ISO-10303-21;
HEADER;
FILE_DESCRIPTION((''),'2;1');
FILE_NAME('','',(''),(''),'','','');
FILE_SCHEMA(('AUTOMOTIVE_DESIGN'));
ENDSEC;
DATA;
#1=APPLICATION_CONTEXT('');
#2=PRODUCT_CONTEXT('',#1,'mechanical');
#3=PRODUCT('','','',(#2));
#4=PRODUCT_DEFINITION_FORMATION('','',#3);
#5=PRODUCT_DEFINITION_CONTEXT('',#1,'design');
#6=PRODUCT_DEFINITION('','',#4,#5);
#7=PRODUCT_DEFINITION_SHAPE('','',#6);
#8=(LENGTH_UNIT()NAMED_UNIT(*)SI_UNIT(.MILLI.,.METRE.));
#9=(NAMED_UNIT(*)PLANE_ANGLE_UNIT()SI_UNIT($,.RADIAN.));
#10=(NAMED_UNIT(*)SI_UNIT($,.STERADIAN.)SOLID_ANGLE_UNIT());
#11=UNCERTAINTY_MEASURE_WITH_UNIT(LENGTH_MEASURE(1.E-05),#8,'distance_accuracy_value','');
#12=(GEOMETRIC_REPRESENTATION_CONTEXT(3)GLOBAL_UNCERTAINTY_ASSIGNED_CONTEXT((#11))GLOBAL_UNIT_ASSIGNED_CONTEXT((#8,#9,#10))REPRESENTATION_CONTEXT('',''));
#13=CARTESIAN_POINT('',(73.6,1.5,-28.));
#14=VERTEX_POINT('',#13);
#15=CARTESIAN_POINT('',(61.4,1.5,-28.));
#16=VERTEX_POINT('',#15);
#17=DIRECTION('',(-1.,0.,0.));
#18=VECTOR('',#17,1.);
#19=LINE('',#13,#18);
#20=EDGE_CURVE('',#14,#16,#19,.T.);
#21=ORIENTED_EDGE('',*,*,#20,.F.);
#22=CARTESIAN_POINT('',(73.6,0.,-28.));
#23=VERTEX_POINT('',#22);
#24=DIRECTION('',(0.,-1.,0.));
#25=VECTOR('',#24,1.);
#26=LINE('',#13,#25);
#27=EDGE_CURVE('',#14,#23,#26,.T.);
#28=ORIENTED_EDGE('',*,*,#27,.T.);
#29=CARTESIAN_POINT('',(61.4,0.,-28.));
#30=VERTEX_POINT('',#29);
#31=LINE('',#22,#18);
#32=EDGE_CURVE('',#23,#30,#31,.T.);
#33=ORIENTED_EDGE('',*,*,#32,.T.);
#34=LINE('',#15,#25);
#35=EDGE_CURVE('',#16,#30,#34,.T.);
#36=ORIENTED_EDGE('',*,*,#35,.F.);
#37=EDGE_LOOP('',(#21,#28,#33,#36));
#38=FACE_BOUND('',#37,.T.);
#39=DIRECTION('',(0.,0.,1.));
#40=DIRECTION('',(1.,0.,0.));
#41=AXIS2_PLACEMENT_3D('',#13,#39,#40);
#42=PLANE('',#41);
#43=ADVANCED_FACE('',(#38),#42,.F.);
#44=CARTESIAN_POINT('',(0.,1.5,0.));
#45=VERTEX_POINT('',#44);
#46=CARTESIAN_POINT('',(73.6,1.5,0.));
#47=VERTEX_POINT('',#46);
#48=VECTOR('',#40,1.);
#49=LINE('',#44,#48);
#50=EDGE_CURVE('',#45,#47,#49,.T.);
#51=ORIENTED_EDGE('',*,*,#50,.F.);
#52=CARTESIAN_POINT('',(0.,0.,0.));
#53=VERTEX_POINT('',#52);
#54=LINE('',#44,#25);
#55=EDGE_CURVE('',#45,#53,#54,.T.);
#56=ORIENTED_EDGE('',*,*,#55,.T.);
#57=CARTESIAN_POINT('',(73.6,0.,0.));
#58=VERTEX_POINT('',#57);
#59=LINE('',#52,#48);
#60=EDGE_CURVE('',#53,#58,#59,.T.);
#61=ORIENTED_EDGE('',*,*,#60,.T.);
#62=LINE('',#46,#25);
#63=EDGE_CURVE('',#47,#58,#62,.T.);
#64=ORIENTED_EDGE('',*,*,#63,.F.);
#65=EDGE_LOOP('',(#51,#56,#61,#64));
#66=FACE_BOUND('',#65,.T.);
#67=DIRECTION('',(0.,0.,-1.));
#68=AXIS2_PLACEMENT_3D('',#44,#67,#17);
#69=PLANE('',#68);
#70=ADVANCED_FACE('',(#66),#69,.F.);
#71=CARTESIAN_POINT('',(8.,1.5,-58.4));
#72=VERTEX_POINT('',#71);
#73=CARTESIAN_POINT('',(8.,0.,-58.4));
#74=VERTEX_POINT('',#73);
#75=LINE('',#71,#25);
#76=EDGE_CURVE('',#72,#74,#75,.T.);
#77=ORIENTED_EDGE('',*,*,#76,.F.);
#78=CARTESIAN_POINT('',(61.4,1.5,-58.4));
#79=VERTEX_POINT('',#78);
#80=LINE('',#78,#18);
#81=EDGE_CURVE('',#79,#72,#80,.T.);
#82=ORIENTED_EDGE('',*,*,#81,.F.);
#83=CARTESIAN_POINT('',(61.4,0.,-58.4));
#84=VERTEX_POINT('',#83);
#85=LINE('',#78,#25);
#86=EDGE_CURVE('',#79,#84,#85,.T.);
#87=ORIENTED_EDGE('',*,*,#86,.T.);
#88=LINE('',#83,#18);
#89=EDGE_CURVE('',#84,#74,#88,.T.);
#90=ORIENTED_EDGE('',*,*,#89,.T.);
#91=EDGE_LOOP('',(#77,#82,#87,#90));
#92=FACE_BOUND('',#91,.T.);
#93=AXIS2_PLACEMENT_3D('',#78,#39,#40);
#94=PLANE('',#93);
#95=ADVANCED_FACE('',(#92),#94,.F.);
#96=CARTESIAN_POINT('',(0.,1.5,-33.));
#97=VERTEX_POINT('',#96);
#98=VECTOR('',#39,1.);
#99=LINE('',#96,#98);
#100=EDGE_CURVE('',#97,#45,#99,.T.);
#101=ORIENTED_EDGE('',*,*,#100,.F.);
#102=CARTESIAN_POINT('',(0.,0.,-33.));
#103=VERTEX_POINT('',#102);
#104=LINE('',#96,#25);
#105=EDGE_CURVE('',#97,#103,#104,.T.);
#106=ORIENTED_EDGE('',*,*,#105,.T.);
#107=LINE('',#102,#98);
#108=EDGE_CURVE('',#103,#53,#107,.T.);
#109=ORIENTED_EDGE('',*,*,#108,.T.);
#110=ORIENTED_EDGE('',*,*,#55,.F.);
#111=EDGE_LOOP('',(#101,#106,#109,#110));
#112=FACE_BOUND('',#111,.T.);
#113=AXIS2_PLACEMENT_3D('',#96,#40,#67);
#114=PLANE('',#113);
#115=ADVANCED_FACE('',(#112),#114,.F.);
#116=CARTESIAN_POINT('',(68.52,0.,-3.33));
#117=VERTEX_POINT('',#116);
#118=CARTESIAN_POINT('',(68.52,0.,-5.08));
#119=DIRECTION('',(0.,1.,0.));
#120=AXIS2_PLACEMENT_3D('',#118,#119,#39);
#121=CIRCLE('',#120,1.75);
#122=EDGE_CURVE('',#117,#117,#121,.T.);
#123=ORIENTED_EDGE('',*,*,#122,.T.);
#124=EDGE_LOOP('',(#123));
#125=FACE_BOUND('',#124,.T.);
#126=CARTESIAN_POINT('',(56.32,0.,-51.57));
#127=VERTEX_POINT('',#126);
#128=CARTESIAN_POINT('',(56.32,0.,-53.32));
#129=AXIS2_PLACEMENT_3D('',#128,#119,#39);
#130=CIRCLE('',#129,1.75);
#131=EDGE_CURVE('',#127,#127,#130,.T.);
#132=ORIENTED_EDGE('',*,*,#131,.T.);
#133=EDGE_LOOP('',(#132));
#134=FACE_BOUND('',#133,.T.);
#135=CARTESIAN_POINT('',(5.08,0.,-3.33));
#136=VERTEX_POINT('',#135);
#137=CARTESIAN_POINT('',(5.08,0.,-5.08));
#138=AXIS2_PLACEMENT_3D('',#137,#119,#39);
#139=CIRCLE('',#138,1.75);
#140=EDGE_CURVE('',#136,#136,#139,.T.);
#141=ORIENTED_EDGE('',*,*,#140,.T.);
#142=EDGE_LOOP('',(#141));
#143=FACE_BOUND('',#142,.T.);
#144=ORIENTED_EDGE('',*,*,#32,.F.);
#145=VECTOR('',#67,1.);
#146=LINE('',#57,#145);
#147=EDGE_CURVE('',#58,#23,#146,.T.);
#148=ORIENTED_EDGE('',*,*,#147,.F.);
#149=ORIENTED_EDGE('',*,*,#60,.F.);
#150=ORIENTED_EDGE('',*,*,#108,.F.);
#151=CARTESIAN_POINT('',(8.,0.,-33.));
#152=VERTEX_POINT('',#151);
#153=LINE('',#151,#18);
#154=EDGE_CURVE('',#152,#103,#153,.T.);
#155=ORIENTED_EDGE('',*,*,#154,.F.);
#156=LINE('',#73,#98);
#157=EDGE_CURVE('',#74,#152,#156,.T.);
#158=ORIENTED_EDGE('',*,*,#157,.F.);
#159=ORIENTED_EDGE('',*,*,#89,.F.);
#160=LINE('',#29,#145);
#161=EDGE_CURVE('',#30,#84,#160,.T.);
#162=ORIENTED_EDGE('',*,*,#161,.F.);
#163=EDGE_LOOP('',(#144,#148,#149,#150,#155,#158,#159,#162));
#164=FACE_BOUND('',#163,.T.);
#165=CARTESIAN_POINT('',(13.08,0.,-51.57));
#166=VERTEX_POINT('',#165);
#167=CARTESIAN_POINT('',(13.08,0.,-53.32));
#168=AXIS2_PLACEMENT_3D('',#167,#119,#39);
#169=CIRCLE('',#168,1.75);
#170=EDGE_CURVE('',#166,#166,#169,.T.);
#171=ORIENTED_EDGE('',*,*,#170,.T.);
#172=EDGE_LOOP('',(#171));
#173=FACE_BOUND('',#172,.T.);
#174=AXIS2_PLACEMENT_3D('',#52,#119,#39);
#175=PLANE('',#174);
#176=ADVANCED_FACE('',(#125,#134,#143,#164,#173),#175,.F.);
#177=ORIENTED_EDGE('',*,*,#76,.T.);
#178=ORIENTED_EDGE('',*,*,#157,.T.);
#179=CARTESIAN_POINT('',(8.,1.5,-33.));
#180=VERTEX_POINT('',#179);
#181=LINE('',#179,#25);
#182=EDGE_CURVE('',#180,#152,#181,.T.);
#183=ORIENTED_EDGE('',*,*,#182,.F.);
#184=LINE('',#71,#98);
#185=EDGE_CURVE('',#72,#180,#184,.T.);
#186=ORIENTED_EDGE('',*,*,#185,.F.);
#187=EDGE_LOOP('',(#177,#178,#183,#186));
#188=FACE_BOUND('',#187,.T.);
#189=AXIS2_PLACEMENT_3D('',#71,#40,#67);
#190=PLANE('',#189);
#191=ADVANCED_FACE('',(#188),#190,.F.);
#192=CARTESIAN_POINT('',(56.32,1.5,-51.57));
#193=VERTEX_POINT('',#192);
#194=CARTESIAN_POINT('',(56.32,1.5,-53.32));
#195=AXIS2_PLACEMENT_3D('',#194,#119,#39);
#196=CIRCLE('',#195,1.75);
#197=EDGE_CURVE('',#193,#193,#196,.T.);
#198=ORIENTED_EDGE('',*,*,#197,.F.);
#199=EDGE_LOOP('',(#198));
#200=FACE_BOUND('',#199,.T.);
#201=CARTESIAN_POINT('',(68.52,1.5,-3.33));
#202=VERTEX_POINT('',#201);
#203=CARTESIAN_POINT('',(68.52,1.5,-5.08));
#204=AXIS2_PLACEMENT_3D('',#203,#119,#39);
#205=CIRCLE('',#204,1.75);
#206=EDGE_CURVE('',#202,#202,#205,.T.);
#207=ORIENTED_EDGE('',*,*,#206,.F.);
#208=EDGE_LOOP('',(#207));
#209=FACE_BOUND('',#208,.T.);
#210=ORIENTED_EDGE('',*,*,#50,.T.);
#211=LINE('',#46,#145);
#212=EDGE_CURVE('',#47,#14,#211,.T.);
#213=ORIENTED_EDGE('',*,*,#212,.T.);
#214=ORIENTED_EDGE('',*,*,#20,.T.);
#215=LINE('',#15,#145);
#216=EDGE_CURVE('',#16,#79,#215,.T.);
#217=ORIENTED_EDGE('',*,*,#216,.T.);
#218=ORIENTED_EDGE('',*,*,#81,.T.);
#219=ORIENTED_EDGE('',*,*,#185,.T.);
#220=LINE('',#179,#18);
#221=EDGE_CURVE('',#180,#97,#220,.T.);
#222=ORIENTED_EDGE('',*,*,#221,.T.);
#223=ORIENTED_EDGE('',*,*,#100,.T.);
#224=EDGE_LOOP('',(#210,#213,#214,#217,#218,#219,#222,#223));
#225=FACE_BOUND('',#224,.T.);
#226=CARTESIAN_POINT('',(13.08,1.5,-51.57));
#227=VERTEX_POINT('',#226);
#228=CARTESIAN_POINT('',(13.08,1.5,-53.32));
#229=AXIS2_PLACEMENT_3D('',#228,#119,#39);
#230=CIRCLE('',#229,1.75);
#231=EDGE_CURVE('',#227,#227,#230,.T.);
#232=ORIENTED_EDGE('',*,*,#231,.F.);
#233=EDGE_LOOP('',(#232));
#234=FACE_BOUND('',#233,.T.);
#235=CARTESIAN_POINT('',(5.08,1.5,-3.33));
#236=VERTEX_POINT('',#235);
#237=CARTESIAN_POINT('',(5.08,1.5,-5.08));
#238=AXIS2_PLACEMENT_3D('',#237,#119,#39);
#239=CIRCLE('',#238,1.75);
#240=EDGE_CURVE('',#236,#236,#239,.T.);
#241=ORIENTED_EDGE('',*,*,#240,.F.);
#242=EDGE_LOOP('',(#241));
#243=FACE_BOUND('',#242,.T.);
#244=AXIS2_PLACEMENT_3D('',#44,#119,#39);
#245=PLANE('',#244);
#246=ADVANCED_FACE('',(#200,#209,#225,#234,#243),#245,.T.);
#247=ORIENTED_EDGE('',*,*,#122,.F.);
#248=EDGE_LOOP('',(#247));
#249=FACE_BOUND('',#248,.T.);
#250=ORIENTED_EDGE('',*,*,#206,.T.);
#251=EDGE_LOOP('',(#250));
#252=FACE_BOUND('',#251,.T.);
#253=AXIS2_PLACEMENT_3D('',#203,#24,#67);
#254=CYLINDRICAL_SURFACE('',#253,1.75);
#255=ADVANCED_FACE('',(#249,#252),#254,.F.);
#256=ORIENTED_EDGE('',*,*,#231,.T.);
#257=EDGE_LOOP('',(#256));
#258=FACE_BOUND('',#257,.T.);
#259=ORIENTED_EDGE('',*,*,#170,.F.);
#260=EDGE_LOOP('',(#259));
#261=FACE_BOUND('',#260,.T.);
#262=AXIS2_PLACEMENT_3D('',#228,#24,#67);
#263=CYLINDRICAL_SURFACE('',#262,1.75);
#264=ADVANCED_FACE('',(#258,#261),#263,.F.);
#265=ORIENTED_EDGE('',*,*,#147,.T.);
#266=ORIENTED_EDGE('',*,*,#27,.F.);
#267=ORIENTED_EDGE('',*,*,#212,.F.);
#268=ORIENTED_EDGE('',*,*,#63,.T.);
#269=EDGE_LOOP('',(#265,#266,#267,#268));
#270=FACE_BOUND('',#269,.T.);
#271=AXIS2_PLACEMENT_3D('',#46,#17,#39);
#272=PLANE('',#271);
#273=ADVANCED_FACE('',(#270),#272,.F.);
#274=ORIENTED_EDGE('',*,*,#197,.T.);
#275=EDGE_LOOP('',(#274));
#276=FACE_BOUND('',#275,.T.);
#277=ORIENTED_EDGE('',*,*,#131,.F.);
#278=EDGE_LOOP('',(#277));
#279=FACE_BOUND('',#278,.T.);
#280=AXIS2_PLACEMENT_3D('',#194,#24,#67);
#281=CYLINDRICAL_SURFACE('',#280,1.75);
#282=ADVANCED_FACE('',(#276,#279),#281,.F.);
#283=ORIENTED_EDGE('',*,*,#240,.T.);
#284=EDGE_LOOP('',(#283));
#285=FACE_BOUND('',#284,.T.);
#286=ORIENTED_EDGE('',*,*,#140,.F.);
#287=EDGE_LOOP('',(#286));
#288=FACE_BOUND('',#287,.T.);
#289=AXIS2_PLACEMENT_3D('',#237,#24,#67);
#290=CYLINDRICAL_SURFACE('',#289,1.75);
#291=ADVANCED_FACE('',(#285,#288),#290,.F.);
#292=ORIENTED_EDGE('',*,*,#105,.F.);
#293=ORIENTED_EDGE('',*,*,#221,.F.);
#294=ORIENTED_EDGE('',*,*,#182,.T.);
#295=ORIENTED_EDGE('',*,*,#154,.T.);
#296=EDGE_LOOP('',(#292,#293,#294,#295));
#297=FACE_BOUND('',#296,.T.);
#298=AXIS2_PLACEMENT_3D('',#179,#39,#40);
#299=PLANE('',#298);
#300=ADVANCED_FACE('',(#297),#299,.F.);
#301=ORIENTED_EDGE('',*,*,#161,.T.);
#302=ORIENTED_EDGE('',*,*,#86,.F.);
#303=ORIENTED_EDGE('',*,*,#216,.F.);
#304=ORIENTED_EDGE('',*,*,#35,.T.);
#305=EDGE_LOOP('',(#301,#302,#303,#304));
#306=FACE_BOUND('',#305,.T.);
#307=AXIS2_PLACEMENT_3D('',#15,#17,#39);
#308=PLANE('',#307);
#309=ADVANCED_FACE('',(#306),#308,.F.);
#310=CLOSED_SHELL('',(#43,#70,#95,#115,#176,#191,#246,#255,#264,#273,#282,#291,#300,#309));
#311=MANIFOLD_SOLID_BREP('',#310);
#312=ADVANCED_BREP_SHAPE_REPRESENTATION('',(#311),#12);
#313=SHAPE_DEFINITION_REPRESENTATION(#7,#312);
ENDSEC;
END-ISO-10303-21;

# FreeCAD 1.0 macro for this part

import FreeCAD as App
import Part
import Sketcher
from FreeCAD import Vector

doc = App.newDocument("Part")
body = doc.addObject("PartDesign::Body", "Body")

sketch1 = doc.addObject("Sketcher::SketchObject", "Sketch")
body.addObject(sketch1)
sketch1.AttachmentSupport = (doc.XZ_Plane, [""])
sketch1.MapMode = "FlatFace"
sketch1.addGeometry([
    Part.LineSegment(Vector(0, 0, 0), Vector(73.6, 0, 0)),
    Part.LineSegment(Vector(73.6, 0, 0), Vector(73.6, -28, 0)),
    Part.LineSegment(Vector(73.6, -28, 0), Vector(61.4, -28, 0)),
    Part.LineSegment(Vector(61.4, -28, 0), Vector(61.4, -58.4, 0)),
    Part.LineSegment(Vector(61.4, -58.4, 0), Vector(8, -58.4, 0)),
    Part.LineSegment(Vector(8, -58.4, 0), Vector(8, -33, 0)),
    Part.LineSegment(Vector(8, -33, 0), Vector(0, -33, 0)),
    Part.LineSegment(Vector(0, -33, 0), Vector(0, 0, 0)),
    Part.Circle(Vector(5.08, -5.08, 0), Vector(0, 0, 1), 1.75),
    Part.Circle(Vector(68.52, -5.08, 0), Vector(0, 0, 1), 1.75),
    Part.Circle(Vector(13.08, -53.32, 0), Vector(0, 0, 1), 1.75),
    Part.Circle(Vector(56.32, -53.32, 0), Vector(0, 0, 1), 1.75),
], False)
sketch1.addConstraint([
    Sketcher.Constraint("Coincident", 0, 2, 1, 1),
    Sketcher.Constraint("Coincident", 1, 2, 2, 1),
    Sketcher.Constraint("Coincident", 2, 2, 3, 1),
    Sketcher.Constraint("Coincident", 3, 2, 4, 1),
    Sketcher.Constraint("Coincident", 4, 2, 5, 1),
    Sketcher.Constraint("Coincident", 5, 2, 6, 1),
    Sketcher.Constraint("Coincident", 6, 2, 7, 1),
    Sketcher.Constraint("Coincident", 7, 2, 0, 1),
    Sketcher.Constraint("Horizontal", 0),
    Sketcher.Constraint("Vertical", 1),
    Sketcher.Constraint("Horizontal", 2),
    Sketcher.Constraint("Vertical", 3),
    Sketcher.Constraint("Horizontal", 4),
    Sketcher.Constraint("Vertical", 5),
    Sketcher.Constraint("Horizontal", 6),
    Sketcher.Constraint("Vertical", 7),
    Sketcher.Constraint("Coincident", 7, 2, -1, 1),
    Sketcher.Constraint("Equal", 8, 9),
    Sketcher.Constraint("Equal", 9, 10),
    Sketcher.Constraint("Equal", 10, 11),
    Sketcher.Constraint("Horizontal", 8, 3, 9, 3),
    Sketcher.Constraint("Horizontal", 10, 3, 11, 3),
    Sketcher.Constraint("Diameter", 8, 3.5),
    Sketcher.Constraint("DistanceX", 6, 2, 6, 1, 8.0),
    Sketcher.Constraint("DistanceY", 1, 2, 1, 1, 28.0),
    Sketcher.Constraint("DistanceY", 7, 1, 7, 2, 33.0),
    Sketcher.Constraint("DistanceX", 0, 1, 0, 2, 73.6),
    Sketcher.Constraint("DistanceX", 2, 2, 2, 1, 12.2),
    Sketcher.Constraint("DistanceY", 3, 2, 3, 1, 30.4),
    Sketcher.Constraint("DistanceX", 8, 3, 10, 3, 8.0),
    Sketcher.Constraint("DistanceX", 11, 3, 9, 3, 12.2),
    Sketcher.Constraint("DistanceX", -1, 1, 8, 3, 5.08),
    Sketcher.Constraint("DistanceY", 8, 3, -1, 1, 5.08),
    Sketcher.Constraint("DistanceX", -1, 1, 9, 3, 68.52),
    Sketcher.Constraint("DistanceY", 10, 3, -1, 1, 53.32),
])
pad1 = doc.addObject("PartDesign::Pad", "Pad")
body.addObject(pad1)
pad1.Profile = sketch1
pad1.Length = 1.5
pad1.Reversed = True

doc.recompute()
